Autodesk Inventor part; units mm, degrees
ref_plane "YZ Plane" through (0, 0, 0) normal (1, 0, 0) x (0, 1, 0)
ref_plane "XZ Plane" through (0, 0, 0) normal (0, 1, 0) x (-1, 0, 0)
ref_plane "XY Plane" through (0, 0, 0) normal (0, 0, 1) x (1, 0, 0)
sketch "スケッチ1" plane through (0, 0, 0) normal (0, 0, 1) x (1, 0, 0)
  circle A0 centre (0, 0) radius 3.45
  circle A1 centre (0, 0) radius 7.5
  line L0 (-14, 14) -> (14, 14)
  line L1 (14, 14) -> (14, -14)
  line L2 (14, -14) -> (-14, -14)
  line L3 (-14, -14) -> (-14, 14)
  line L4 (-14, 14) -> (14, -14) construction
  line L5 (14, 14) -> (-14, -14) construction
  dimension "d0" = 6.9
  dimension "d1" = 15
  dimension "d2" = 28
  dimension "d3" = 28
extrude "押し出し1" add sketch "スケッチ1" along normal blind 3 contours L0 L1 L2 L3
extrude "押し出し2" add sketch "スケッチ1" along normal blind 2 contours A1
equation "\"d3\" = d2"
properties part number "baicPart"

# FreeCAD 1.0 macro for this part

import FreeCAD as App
import Part
import Sketcher
from FreeCAD import Vector


def add_polygon(sketch, points):
    """Adds a closed chain of lines whose ends are joined by coincident constraints."""
    first, n = sketch.GeometryCount, len(points)
    for a, b in zip(points, points[1:] + points[:1]):
        sketch.addGeometry(Part.LineSegment(App.Vector(*a, 0), App.Vector(*b, 0)), False)
    for i in range(n):
        sketch.addConstraint(Sketcher.Constraint("Coincident", first + i, 2, first + (i + 1) % n, 1))

doc = App.newDocument("Part")
body = doc.addObject("PartDesign::Body", "Body")

sketch1 = body.newObject("Sketcher::SketchObject", "Sketch")
sketch1.AttachmentSupport = (doc.getObject("XY_Plane"), [""])
sketch1.MapMode = "FlatFace"
add_polygon(sketch1, [(14, 14), (-14, 14), (-14, -14), (14, -14)])
sketch1.addGeometry(Part.Circle(Vector(0, 0, 0), Vector(0, 0, 1), 8), False)
sketch1.addConstraint([
    Sketcher.Constraint("Horizontal", 0),
    Sketcher.Constraint("Vertical", 1),
    Sketcher.Constraint("Horizontal", 2),
    Sketcher.Constraint("Vertical", 3),
    Sketcher.Constraint("Coincident", 4, 3, -1, 1),
    Sketcher.Constraint("Symmetric", 0, 2, 2, 2, -1, 1),
    Sketcher.Constraint("Equal", 2, 1),
    Sketcher.Constraint("Diameter", 4, 15.0),
    Sketcher.Constraint("DistanceX", 0, 2, 0, 1, 28.0),
])
pad1 = body.newObject("PartDesign::Pad", "Pad")
pad1.Profile = sketch1
pad1.Length = 3

sketch2 = body.newObject("Sketcher::SketchObject", "Sketch001")
sketch2.AttachmentSupport = (doc.getObject("XY_Plane"), [""])
sketch2.MapMode = "FlatFace"
sketch2.addGeometry([
    Part.Circle(Vector(0, 0, 0), Vector(0, 0, 1), 7.5),
    Part.Circle(Vector(0, 0, 0), Vector(0, 0, 1), 3.5),
], False)
sketch2.addConstraint([
    Sketcher.Constraint("Coincident", 0, 3, -1, 1),
    Sketcher.Constraint("Coincident", 1, 3, -1, 1),
    Sketcher.Constraint("Diameter", 0, 15.0),
    Sketcher.Constraint("Diameter", 1, 6.9),
])
pad2 = body.newObject("PartDesign::Pad", "Pad001")
pad2.Profile = sketch2
pad2.Length = 2

doc.recompute()
